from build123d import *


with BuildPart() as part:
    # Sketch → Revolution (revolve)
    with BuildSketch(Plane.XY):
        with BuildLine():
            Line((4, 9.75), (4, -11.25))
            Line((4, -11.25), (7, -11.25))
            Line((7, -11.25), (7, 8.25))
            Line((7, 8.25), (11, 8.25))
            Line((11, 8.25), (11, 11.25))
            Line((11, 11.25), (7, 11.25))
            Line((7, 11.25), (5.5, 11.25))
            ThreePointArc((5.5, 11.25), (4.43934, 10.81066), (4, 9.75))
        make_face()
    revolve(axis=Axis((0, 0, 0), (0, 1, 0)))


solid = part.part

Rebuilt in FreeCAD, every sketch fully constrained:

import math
import FreeCAD as App
import Part
import Sketcher
Q = App.Units.Quantity

doc = App.newDocument("Part")
body = doc.addObject("PartDesign::Body", "Body")

# Sketch on XY plane
sketch1 = body.newObject("Sketcher::SketchObject", "Sketch")
sketch1.AttachmentSupport = (doc.getObject("XY_Plane"), [""])
sketch1.MapMode = "FlatFace"
sketch1.addGeometry(Part.LineSegment(App.Vector(4, 9.8, 0), App.Vector(4, -11.2, 0)), False)
sketch1.addGeometry(Part.LineSegment(App.Vector(4, -11.2, 0), App.Vector(7, -11.2, 0)), False)
sketch1.addGeometry(Part.LineSegment(App.Vector(7, -11.2, 0), App.Vector(7, 8.2, 0)), False)
sketch1.addGeometry(Part.LineSegment(App.Vector(7, 8.2, 0), App.Vector(11, 8.2, 0)), False)
sketch1.addGeometry(Part.LineSegment(App.Vector(11, 8.2, 0), App.Vector(11, 11.2, 0)), False)
sketch1.addGeometry(Part.LineSegment(App.Vector(11, 11.2, 0), App.Vector(5.5, 11.2, 0)), False)
sketch1.addGeometry(Part.ArcOfCircle(Part.Circle(App.Vector(5.5, 9.7, 0), App.Vector(0, 0, 1), 1.5), math.radians(90), math.radians(180)), False)
sketch1.addConstraint(Sketcher.Constraint("Coincident", 0, 2, 1, 1))
sketch1.addConstraint(Sketcher.Constraint("Coincident", 1, 2, 2, 1))
sketch1.addConstraint(Sketcher.Constraint("Coincident", 2, 2, 3, 1))
sketch1.addConstraint(Sketcher.Constraint("Coincident", 3, 2, 4, 1))
sketch1.addConstraint(Sketcher.Constraint("Coincident", 4, 2, 5, 1))
sketch1.addConstraint(Sketcher.Constraint("Tangent", 5, 2, 6, 1))
sketch1.addConstraint(Sketcher.Constraint("Tangent", 6, 2, 0, 1))
sketch1.addConstraint(Sketcher.Constraint("Vertical", 0))
sketch1.addConstraint(Sketcher.Constraint("Horizontal", 1))
sketch1.addConstraint(Sketcher.Constraint("Vertical", 2))
sketch1.addConstraint(Sketcher.Constraint("Horizontal", 3))
sketch1.addConstraint(Sketcher.Constraint("Vertical", 4))
sketch1.addConstraint(Sketcher.Constraint("Horizontal", 5))
sketch1.addConstraint(Sketcher.Constraint("Equal", 1, 4))
sketch1.addConstraint(Sketcher.Constraint("Radius", 6, Q("1.500001 mm")))
sketch1.addConstraint(Sketcher.Constraint("DistanceX", 1, 1, 1, 2, Q("3 mm")))
sketch1.addConstraint(Sketcher.Constraint("DistanceX", 3, 1, 3, 2, Q("4 mm")))
sketch1.addConstraint(Sketcher.Constraint("DistanceY", 0, 2, 0, 1, Q("21 mm")))
sketch1.addConstraint(Sketcher.Constraint("DistanceX", -1, 1, 0, 2, Q("4 mm")))
sketch1.addConstraint(Sketcher.Constraint("DistanceY", -1, 1, 6, 3, Q("9.749999 mm")))
revolution = body.newObject("PartDesign::Revolution", "Revolution")
revolution.Profile = sketch1
revolution.ReferenceAxis = (sketch1, ["V_Axis"])
revolution.Angle = 360

doc.recompute()
